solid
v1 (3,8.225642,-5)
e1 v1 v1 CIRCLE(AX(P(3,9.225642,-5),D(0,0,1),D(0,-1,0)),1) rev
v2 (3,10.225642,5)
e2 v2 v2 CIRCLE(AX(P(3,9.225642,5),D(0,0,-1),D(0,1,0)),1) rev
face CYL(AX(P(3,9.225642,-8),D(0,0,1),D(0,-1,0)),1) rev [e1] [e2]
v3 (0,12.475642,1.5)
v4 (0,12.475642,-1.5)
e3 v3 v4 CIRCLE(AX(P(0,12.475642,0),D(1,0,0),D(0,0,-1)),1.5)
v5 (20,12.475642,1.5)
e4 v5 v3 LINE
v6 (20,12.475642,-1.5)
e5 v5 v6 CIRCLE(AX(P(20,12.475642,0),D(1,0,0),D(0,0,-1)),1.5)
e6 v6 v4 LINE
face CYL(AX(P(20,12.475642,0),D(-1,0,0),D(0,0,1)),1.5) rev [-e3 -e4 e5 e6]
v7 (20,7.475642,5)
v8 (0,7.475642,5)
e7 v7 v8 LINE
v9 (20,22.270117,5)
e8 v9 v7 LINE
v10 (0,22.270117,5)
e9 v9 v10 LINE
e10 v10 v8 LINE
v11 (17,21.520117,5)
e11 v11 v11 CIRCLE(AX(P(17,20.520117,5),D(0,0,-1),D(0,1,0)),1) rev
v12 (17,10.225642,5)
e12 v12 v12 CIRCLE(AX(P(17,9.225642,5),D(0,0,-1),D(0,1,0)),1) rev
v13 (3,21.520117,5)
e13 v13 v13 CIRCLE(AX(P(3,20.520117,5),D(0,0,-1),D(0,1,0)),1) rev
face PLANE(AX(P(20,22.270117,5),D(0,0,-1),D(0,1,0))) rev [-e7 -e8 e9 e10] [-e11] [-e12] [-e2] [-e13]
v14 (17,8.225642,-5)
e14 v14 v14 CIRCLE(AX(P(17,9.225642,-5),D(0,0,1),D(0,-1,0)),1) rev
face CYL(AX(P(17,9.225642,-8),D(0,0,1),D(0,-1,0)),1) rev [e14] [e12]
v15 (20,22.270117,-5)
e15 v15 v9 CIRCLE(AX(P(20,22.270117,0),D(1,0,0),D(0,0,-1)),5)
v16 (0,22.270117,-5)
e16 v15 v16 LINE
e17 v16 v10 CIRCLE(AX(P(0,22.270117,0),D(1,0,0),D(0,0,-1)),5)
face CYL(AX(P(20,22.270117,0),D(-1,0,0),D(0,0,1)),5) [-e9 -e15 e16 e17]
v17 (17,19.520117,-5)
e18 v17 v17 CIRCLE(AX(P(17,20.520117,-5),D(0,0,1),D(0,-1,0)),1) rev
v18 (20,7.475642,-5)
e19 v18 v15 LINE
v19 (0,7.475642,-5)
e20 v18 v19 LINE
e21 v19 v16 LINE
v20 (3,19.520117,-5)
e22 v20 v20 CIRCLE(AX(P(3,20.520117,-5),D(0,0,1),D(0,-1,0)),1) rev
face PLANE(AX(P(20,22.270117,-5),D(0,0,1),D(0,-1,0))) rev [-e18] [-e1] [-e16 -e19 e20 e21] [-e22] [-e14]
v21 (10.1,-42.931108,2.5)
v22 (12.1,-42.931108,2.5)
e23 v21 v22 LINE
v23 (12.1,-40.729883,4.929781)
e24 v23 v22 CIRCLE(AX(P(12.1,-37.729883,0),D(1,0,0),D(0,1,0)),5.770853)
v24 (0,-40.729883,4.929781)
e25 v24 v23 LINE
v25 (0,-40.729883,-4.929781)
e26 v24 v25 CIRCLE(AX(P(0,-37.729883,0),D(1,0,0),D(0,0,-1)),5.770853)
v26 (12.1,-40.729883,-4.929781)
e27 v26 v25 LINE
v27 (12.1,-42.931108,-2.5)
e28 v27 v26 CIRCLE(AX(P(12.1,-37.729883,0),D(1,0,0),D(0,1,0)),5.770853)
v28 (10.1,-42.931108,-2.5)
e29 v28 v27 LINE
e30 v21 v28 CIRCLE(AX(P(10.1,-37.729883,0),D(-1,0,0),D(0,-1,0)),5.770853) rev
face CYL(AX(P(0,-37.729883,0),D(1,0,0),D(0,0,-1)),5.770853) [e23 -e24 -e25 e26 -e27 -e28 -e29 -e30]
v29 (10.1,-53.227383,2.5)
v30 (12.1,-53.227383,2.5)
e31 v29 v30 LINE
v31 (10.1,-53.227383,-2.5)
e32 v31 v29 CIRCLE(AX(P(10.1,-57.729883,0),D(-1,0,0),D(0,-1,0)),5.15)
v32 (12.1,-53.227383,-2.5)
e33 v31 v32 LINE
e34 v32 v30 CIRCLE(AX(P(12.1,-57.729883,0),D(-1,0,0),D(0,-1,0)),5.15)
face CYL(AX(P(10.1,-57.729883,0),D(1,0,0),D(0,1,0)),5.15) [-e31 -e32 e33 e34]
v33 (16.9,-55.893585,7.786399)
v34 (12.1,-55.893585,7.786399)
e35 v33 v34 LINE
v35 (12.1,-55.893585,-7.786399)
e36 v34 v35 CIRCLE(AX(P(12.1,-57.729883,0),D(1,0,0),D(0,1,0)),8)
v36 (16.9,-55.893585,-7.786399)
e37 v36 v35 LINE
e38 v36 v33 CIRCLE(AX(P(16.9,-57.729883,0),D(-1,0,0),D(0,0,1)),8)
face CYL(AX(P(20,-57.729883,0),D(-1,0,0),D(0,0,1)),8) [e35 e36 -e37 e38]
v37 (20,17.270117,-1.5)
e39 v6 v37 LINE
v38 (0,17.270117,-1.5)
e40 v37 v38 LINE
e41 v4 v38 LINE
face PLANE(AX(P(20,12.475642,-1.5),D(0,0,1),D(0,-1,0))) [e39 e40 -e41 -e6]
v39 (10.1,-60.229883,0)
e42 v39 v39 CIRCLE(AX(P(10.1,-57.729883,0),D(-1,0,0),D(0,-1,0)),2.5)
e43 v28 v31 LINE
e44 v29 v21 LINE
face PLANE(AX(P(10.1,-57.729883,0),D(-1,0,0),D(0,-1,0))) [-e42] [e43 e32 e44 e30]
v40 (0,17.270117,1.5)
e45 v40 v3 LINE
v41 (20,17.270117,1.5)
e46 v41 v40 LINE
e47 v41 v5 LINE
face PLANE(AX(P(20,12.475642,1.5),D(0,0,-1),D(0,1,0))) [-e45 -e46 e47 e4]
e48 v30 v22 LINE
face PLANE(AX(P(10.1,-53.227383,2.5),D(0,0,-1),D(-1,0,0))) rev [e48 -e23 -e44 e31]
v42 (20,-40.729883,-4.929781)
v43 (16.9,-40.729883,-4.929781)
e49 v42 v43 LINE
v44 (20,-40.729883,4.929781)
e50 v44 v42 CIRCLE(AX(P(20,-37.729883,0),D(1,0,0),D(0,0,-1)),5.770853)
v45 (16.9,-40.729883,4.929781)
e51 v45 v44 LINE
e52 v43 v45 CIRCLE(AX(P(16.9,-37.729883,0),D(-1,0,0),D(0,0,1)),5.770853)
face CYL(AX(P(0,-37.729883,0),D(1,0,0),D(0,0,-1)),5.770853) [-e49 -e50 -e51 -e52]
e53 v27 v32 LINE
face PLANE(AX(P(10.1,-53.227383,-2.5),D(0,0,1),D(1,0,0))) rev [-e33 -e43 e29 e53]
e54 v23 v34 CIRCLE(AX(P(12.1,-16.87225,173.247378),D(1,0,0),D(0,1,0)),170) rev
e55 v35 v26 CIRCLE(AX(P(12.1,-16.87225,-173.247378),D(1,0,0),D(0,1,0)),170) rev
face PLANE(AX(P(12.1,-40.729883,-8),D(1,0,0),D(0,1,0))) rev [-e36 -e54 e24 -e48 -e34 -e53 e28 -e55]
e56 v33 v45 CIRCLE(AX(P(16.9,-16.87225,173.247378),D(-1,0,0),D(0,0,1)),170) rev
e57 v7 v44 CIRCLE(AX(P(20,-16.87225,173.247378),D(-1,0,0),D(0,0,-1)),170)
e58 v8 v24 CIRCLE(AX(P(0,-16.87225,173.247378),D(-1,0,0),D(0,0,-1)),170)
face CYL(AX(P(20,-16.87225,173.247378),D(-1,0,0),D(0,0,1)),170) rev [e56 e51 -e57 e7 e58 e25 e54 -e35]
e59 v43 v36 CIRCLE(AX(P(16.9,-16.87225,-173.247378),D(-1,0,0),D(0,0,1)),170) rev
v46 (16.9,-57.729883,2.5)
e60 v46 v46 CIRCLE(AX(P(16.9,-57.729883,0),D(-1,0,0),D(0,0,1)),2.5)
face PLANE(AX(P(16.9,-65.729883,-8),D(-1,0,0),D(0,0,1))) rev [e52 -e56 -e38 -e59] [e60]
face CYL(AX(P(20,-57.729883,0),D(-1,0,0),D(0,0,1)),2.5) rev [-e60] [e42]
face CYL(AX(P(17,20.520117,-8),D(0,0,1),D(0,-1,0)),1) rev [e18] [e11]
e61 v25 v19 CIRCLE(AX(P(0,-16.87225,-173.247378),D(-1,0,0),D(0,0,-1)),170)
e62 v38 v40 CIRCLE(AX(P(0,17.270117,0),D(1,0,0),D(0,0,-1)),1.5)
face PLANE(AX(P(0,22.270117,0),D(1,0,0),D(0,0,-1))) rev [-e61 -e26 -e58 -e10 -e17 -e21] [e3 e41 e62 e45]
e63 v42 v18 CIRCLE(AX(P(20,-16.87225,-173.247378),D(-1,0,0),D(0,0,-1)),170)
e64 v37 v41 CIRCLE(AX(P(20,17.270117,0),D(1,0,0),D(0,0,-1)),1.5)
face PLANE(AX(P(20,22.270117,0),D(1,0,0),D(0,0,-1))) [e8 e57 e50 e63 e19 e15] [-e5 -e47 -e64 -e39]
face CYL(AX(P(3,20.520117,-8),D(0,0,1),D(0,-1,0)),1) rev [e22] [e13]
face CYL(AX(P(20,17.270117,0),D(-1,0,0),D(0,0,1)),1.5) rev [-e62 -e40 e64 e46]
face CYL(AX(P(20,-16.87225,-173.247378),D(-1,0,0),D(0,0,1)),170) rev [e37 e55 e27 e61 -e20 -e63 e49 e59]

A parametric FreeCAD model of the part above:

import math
import FreeCAD as App
import Part
import Sketcher
from FreeCAD import Vector

doc = App.newDocument("Part")
body = doc.addObject("PartDesign::Body", "Body")

sketch1 = body.newObject("Sketcher::SketchObject", "Sketch")
sketch1.AttachmentSupport = (doc.getObject("YZ_Plane"), [""])
sketch1.MapMode = "FlatFace"
sketch1.addGeometry([
    Part.LineSegment(Vector(22.3, 5, 0), Vector(7.5, 5, 0)),
    Part.ArcOfCircle(Part.Circle(Vector(-16.9, 173.2, 0), Vector(0, 0, 1), 170), math.radians(-103), math.radians(-82)),
    Part.ArcOfCircle(Part.Circle(Vector(-57.7, 0, 0), Vector(0, 0, 1), 8), math.radians(77), math.radians(283)),
    Part.ArcOfCircle(Part.Circle(Vector(-16.9, -173.2, 0), Vector(0, 0, 1), 170), math.radians(82), math.radians(103)),
    Part.LineSegment(Vector(7.5, -5, 0), Vector(22.3, -5, 0)),
    Part.ArcOfCircle(Part.Circle(Vector(22.3, 0, 0), Vector(0, 0, 1), 5), math.radians(-90), math.radians(90)),
    Part.Circle(Vector(-57.7, 0, 0), Vector(0, 0, 1), 2.5),
    Part.LineSegment(Vector(17.3, -1.5, 0), Vector(12.5, -1.5, 0)),
    Part.ArcOfCircle(Part.Circle(Vector(12.5, 0, 0), Vector(0, 0, 1), 1.5), math.radians(90), math.radians(270)),
    Part.LineSegment(Vector(12.5, 1.5, 0), Vector(17.3, 1.5, 0)),
    Part.ArcOfCircle(Part.Circle(Vector(17.3, 0, 0), Vector(0, 0, 1), 1.5), math.radians(-90), math.radians(90)),
], False)
sketch1.addConstraint([
    Sketcher.Constraint("Coincident", 0, 2, 1, 2),
    Sketcher.Constraint("Tangent", 1, 1, 2, 1),
    Sketcher.Constraint("Tangent", 2, 2, 3, 2),
    Sketcher.Constraint("Coincident", 3, 1, 4, 1),
    Sketcher.Constraint("Tangent", 4, 2, 5, 1),
    Sketcher.Constraint("Tangent", 5, 2, 0, 1),
    Sketcher.Constraint("Tangent", 7, 2, 8, 2),
    Sketcher.Constraint("Tangent", 8, 1, 9, 1),
    Sketcher.Constraint("Tangent", 9, 2, 10, 2),
    Sketcher.Constraint("Tangent", 10, 1, 7, 1),
    Sketcher.Constraint("Horizontal", 0),
    Sketcher.Constraint("Horizontal", 4),
    Sketcher.Constraint("Horizontal", 7),
    Sketcher.Constraint("Horizontal", 9),
    Sketcher.Constraint("Coincident", 6, 3, 2, 3),
    Sketcher.Constraint("Equal", 1, 3),
    Sketcher.Constraint("Symmetric", 1, 3, 3, 3, -1),
    Sketcher.Constraint("PointOnObject", 5, 3, -1),
    Sketcher.Constraint("PointOnObject", 8, 3, -1),
    Sketcher.Constraint("Diameter", 6, 5.0),
    Sketcher.Constraint("Radius", 1, 170.0),
    Sketcher.Constraint("Radius", 2, 8.0),
    Sketcher.Constraint("Radius", 5, 5.0),
    Sketcher.Constraint("Radius", 8, 1.5),
    Sketcher.Constraint("DistanceX", 2, 3, 5, 3, 80.0),
    Sketcher.Constraint("DistanceX", 10, 3, 5, 3, 5.0),
    Sketcher.Constraint("DistanceX", 0, 2, 8, 3, 5.0),
    Sketcher.Constraint("DistanceX", 0, 2, 0, 1, 14.794475),
    Sketcher.Constraint("DistanceX", 1, 3, -1, 1, 16.87225),
])
pad1 = body.newObject("PartDesign::Pad", "Pad")
pad1.Profile = sketch1
pad1.Length = 20

sketch2 = body.newObject("Sketcher::SketchObject", "Sketch001")
sketch2.AttachmentSupport = (doc.getObject("XY_Plane"), [""])
sketch2.MapMode = "FlatFace"
sketch2.addGeometry([
    Part.LineSegment(Vector(0, -40.7, 0), Vector(0, -65.7, 0)),
    Part.LineSegment(Vector(0, -65.7, 0), Vector(8.1, -65.7, 0)),
    Part.LineSegment(Vector(8.1, -65.7, 0), Vector(8.1, -40.7, 0)),
    Part.LineSegment(Vector(8.1, -40.7, 0), Vector(0, -40.7, 0)),
    Part.LineSegment(Vector(16.9, -40.7, 0), Vector(16.9, -65.7, 0)),
    Part.LineSegment(Vector(16.9, -65.7, 0), Vector(20, -65.7, 0)),
    Part.LineSegment(Vector(20, -65.7, 0), Vector(20, -40.7, 0)),
    Part.LineSegment(Vector(20, -40.7, 0), Vector(16.9, -40.7, 0)),
], False)
sketch2.addConstraint([
    Sketcher.Constraint("Coincident", 0, 2, 1, 1),
    Sketcher.Constraint("Coincident", 1, 2, 2, 1),
    Sketcher.Constraint("Coincident", 2, 2, 3, 1),
    Sketcher.Constraint("Coincident", 3, 2, 0, 1),
    Sketcher.Constraint("Coincident", 4, 2, 5, 1),
    Sketcher.Constraint("Coincident", 5, 2, 6, 1),
    Sketcher.Constraint("Coincident", 6, 2, 7, 1),
    Sketcher.Constraint("Coincident", 7, 2, 4, 1),
    Sketcher.Constraint("Vertical", 0),
    Sketcher.Constraint("Horizontal", 1),
    Sketcher.Constraint("Vertical", 2),
    Sketcher.Constraint("Horizontal", 3),
    Sketcher.Constraint("Vertical", 4),
    Sketcher.Constraint("Horizontal", 5),
    Sketcher.Constraint("Vertical", 6),
    Sketcher.Constraint("Horizontal", 7),
    Sketcher.Constraint("PointOnObject", 0, 2, -2),
    Sketcher.Constraint("Horizontal", 1, 2, 4, 2),
    Sketcher.Constraint("Horizontal", 3, 2, 6, 2),
    Sketcher.Constraint("DistanceY", 0, 2, 0, 1, 25.0),
    Sketcher.Constraint("DistanceX", 1, 1, 1, 2, 8.1),
    Sketcher.Constraint("DistanceX", 5, 1, 5, 2, 3.1),
    Sketcher.Constraint("DistanceX", -1, 1, 5, 2, 20.0),
    Sketcher.Constraint("DistanceY", 0, 2, -1, 1, 65.729883),
])
pocket1 = body.newObject("PartDesign::Pocket", "Pocket")
pocket1.Profile = sketch2
pocket1.Type = "ThroughAll"
pocket1.Midplane = True

sketch3 = body.newObject("Sketcher::SketchObject", "Sketch002")
sketch3.AttachmentSupport = (doc.getObject("XY_Plane"), [""])
sketch3.MapMode = "FlatFace"
sketch3.AttachmentOffset = App.Placement(Vector(0, 0, -5), App.Rotation())
sketch3.addGeometry([
    Part.Circle(Vector(17, 9.2, 0), Vector(0, 0, 1), 1),
    Part.Circle(Vector(17, 20.5, 0), Vector(0, 0, 1), 1),
    Part.Circle(Vector(3, 9.2, 0), Vector(0, 0, 1), 1),
    Part.Circle(Vector(3, 20.5, 0), Vector(0, 0, 1), 1),
], False)
sketch3.addConstraint([
    Sketcher.Constraint("Equal", 0, 1),
    Sketcher.Constraint("Equal", 1, 2),
    Sketcher.Constraint("Equal", 2, 3),
    Sketcher.Constraint("Horizontal", 0, 3, 2, 3),
    Sketcher.Constraint("Horizontal", 1, 3, 3, 3),
    Sketcher.Constraint("Vertical", 0, 3, 1, 3),
    Sketcher.Constraint("Vertical", 2, 3, 3, 3),
    Sketcher.Constraint("Diameter", 0, 2.0),
    Sketcher.Constraint("DistanceX", -1, 1, 0, 3, 17.0),
    Sketcher.Constraint("DistanceX", -1, 1, 2, 3, 3.0),
    Sketcher.Constraint("DistanceY", -1, 1, 0, 3, 9.225642),
    Sketcher.Constraint("DistanceY", -1, 1, 1, 3, 20.520117),
])
pocket2 = body.newObject("PartDesign::Pocket", "Pocket001")
pocket2.Profile = sketch3
pocket2.Type = "ThroughAll"
pocket2.Midplane = True

sketch4 = body.newObject("Sketcher::SketchObject", "Sketch003")
sketch4.AttachmentSupport = (doc.getObject("XY_Plane"), [""])
sketch4.MapMode = "FlatFace"
sketch4.AttachmentOffset = App.Placement(Vector(0, 0, 5), App.Rotation())
sketch4.addGeometry([
    Part.LineSegment(Vector(8.1, -40.7, 0), Vector(8.1, -65.7, 0)),
    Part.LineSegment(Vector(8.1, -65.7, 0), Vector(12.1, -65.7, 0)),
    Part.LineSegment(Vector(12.1, -65.7, 0), Vector(12.1, -40.7, 0)),
    Part.LineSegment(Vector(12.1, -40.7, 0), Vector(8.1, -40.7, 0)),
], False)
sketch4.addConstraint([
    Sketcher.Constraint("Coincident", 0, 2, 1, 1),
    Sketcher.Constraint("Coincident", 1, 2, 2, 1),
    Sketcher.Constraint("Coincident", 2, 2, 3, 1),
    Sketcher.Constraint("Coincident", 3, 2, 0, 1),
    Sketcher.Constraint("Vertical", 0),
    Sketcher.Constraint("Horizontal", 1),
    Sketcher.Constraint("Vertical", 2),
    Sketcher.Constraint("Horizontal", 3),
    Sketcher.Constraint("DistanceX", 1, 1, 1, 2, 4.0),
    Sketcher.Constraint("DistanceY", 0, 2, 0, 1, 25.0),
    Sketcher.Constraint("DistanceX", -1, 1, 0, 2, 8.1),
    Sketcher.Constraint("DistanceY", 0, 2, -1, 1, 65.729883),
])
pocket3 = body.newObject("PartDesign::Pocket", "Pocket002")
pocket3.Profile = sketch4
pocket3.Type = "ThroughAll"
pocket3.Midplane = True

sketch5 = body.newObject("Sketcher::SketchObject", "Sketch004")
sketch5.AttachmentSupport = (doc.getObject("YZ_Plane"), [""])
sketch5.MapMode = "FlatFace"
sketch5.addGeometry([
    Part.LineSegment(Vector(-41, -5, 0), Vector(-41, 5, 0)),
    Part.ArcOfCircle(Part.Circle(Vector(-38, 0, 0), Vector(0, 0, 1), 6), math.radians(121), math.radians(239)),
], False)
sketch5.addConstraint([
    Sketcher.Constraint("Coincident", 0, 1, 1, 2),
    Sketcher.Constraint("Coincident", 1, 1, 0, 2),
    Sketcher.Constraint("Vertical", 0),
    Sketcher.Constraint("PointOnObject", 1, 3, -1),
    Sketcher.Constraint("DistanceX", 0, 1, 1, 3, 3.0),
    Sketcher.Constraint("Radius", 1, 5.770853),
    Sketcher.Constraint("DistanceX", 1, 3, -1, 1, 37.729883),
])
pad2 = body.newObject("PartDesign::Pad", "Pad001")
pad2.Profile = sketch5
pad2.Length = 20

sketch6 = body.newObject("Sketcher::SketchObject", "Sketch005")
sketch6.AttachmentSupport = (doc.getObject("YZ_Plane"), [""])
sketch6.MapMode = "FlatFace"
sketch6.AttachmentOffset = App.Placement(Vector(0, 0, 12.1), App.Rotation())
sketch6.addGeometry([
    Part.LineSegment(Vector(-42.9, -2.5, 0), Vector(-53.2, -2.5, 0)),
    Part.ArcOfCircle(Part.Circle(Vector(-57.7, 0, 0), Vector(0, 0, 1), 5.2), math.radians(29), math.radians(331)),
    Part.LineSegment(Vector(-53.2, 2.5, 0), Vector(-42.9, 2.5, 0)),
    Part.LineSegment(Vector(-42.9, 2.5, 0), Vector(-42.9, -2.5, 0)),
    Part.Circle(Vector(-57.7, 0, 0), Vector(0, 0, 1), 2.5),
], False)
sketch6.addConstraint([
    Sketcher.Constraint("Coincident", 0, 2, 1, 2),
    Sketcher.Constraint("Coincident", 1, 1, 2, 1),
    Sketcher.Constraint("Coincident", 2, 2, 3, 1),
    Sketcher.Constraint("Coincident", 3, 2, 0, 1),
    Sketcher.Constraint("Horizontal", 0),
    Sketcher.Constraint("Horizontal", 2),
    Sketcher.Constraint("Vertical", 3),
    Sketcher.Constraint("Coincident", 4, 3, 1, 3),
    Sketcher.Constraint("Symmetric", 0, 2, 1, 1, -1),
    Sketcher.Constraint("Diameter", 4, 5.0),
    Sketcher.Constraint("DistanceY", 3, 2, 3, 1, 5.0),
    Sketcher.Constraint("Radius", 1, 5.15),
    Sketcher.Constraint("DistanceX", 0, 2, 0, 1, 10.296276),
    Sketcher.Constraint("DistanceX", 1, 3, -1, 1, 57.729883),
])
pad3 = body.newObject("PartDesign::Pad", "Pad002")
pad3.Profile = sketch6
pad3.Length = 2
pad3.Reversed = True

doc.recompute()
